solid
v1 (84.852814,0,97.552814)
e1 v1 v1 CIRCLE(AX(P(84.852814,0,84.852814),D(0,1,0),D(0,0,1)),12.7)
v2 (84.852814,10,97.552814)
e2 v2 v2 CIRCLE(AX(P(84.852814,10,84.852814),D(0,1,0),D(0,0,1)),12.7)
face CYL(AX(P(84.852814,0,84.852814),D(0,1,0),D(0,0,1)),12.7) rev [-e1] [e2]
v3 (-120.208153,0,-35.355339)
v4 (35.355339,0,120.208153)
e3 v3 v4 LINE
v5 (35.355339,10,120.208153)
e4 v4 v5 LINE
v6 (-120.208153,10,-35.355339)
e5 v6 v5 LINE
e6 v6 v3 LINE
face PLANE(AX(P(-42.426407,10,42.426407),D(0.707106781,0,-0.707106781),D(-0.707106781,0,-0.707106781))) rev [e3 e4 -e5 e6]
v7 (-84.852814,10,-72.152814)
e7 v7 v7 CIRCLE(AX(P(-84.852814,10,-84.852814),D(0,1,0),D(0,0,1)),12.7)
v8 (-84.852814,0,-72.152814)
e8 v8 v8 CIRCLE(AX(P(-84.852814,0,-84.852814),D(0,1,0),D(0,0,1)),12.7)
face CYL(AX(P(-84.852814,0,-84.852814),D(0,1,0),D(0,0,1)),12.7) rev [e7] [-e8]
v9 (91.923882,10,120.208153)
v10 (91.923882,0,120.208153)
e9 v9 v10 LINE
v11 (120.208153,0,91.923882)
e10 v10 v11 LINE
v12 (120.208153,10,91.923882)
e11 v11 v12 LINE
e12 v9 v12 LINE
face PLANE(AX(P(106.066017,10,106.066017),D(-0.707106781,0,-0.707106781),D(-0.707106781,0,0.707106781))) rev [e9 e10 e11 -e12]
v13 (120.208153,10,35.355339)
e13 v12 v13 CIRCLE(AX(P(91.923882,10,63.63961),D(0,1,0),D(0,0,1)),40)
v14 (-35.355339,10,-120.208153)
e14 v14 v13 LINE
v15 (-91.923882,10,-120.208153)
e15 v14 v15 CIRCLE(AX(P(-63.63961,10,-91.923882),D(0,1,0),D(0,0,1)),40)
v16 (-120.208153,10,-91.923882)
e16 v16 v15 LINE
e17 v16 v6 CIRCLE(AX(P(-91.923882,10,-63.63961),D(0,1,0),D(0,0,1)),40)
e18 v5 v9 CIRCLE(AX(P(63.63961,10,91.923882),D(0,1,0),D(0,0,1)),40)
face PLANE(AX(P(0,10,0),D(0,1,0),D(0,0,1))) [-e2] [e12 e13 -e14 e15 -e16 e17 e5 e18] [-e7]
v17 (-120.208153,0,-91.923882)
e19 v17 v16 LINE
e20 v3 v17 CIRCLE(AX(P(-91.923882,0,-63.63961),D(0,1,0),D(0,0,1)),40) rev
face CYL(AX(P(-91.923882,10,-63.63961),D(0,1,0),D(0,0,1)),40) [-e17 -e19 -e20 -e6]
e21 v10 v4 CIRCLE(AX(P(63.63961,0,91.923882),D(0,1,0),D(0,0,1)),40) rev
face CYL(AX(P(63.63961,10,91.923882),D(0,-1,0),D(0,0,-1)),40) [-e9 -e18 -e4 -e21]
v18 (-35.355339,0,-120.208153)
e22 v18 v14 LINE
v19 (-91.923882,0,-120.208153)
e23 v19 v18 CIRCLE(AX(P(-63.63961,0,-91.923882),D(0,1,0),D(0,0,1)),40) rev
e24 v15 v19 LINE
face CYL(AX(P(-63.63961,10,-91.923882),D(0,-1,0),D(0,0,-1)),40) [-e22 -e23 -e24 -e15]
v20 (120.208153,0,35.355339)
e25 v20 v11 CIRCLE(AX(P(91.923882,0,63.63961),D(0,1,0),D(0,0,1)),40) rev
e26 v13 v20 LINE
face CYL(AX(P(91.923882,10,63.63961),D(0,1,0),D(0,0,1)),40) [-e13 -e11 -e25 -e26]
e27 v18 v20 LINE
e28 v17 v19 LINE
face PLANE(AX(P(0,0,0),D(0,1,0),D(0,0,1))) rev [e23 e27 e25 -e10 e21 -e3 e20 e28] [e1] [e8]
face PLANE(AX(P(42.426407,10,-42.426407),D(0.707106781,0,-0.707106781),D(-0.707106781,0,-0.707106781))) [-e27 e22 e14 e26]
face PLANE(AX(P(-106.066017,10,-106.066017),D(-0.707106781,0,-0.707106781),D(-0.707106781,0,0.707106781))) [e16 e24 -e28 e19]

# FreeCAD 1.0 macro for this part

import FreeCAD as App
import Part
import Sketcher
from FreeCAD import Vector
Q = App.Units.Quantity


def edges_at(feature, points):
    """Names of the edges that pass closest to the given points."""
    edges = feature.Shape.Edges
    near = lambda p: min(range(len(edges)), key=lambda i: edges[i].distToShape(Part.Vertex(*p))[0])
    return sorted({f"Edge{near(p) + 1}" for p in points})

doc = App.newDocument("Part")
body = doc.addObject("PartDesign::Body", "Body")

# Sketch on XZ plane
sketch1 = body.newObject("Sketcher::SketchObject", "Sketch")
sketch1.AttachmentSupport = (doc.getObject("XZ_Plane"), [""])
sketch1.MapMode = "FlatFace"
sketch1.addGeometry(Part.LineSegment(Vector(148.492424, 63.63961, 0), Vector(-63.63961, -148.492424, 0)), False)
sketch1.addGeometry(Part.LineSegment(Vector(-63.63961, -148.492424, 0), Vector(-148.492424, -63.63961, 0)), False)
sketch1.addGeometry(Part.LineSegment(Vector(-148.492424, -63.63961, 0), Vector(63.63961, 148.492424, 0)), False)
sketch1.addGeometry(Part.LineSegment(Vector(63.63961, 148.492424, 0), Vector(148.492424, 63.63961, 0)), False)
sketch1.addConstraint(Sketcher.Constraint("Coincident", 0, 2, 1, 1))
sketch1.addConstraint(Sketcher.Constraint("Coincident", 1, 2, 2, 1))
sketch1.addConstraint(Sketcher.Constraint("Coincident", 2, 2, 3, 1))
sketch1.addConstraint(Sketcher.Constraint("Coincident", 3, 2, 0, 1))
sketch1.addConstraint(Sketcher.Constraint("Symmetric", 0, 2, 2, 2, -1, 1))
sketch1.addConstraint(Sketcher.Constraint("Symmetric", 1, 2, 3, 2, -1, 1))
sketch1.addConstraint(Sketcher.Constraint("Perpendicular", 0, 1))
sketch1.addConstraint(Sketcher.Constraint("Angle", 0, Q("-135 deg")))
sketch1.addConstraint(Sketcher.Constraint("Distance", 0, 300.0))
sketch1.addConstraint(Sketcher.Constraint("Distance", 1, 120.0))
pad1 = body.newObject("PartDesign::Pad", "Pad")
pad1.Profile = sketch1
pad1.Length = 10
pad1.Reversed = True

# Sketch on XZ plane
sketch2 = body.newObject("Sketcher::SketchObject", "Sketch001")
sketch2.AttachmentSupport = (doc.getObject("XZ_Plane"), [""])
sketch2.MapMode = "FlatFace"
sketch2.AttachmentOffset = App.Placement(Vector(0, 0, -10), App.Rotation())
sketch2.addGeometry(Part.Circle(Vector(-84.852814, -84.852814, 0), Vector(0, 0, 1), 12.7), False)
sketch2.addGeometry(Part.Circle(Vector(84.852814, 84.852814, 0), Vector(0, 0, 1), 12.7), False)
sketch2.addConstraint(Sketcher.Constraint("Equal", 0, 1))
sketch2.addConstraint(Sketcher.Constraint("Symmetric", 0, 3, 1, 3, -1, 1))
sketch2.addConstraint(Sketcher.Constraint("Diameter", 0, 25.4))
sketch2.addConstraint(Sketcher.Constraint("DistanceX", 0, 3, -1, 1, 84.852814))
sketch2.addConstraint(Sketcher.Constraint("DistanceY", 0, 3, -1, 1, 84.852814))
pocket1 = body.newObject("PartDesign::Pocket", "Pocket")
pocket1.Profile = sketch2
pocket1.Length = 10
pocket1.Reversed = True
doc.recompute()

fillet = body.newObject("PartDesign::Fillet", "Fillet")
fillet.Base = (pocket1, edges_at(pocket1, [
    (148.492, 5, 63.64),
    (63.64, 5, 148.492),
    (-148.492, 5, -63.64),
    (-63.64, 5, -148.492),
]))
fillet.Radius = 40

doc.recompute()
